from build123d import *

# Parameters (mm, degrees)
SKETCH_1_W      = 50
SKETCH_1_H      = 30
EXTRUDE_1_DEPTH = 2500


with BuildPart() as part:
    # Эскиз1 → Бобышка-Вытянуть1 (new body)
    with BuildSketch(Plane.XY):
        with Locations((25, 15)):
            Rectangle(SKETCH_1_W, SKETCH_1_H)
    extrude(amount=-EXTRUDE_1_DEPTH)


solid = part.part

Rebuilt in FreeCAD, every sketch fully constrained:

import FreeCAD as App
import Part
import Sketcher

V = App.Vector

doc = App.newDocument("Part")
body = doc.addObject("PartDesign::Body", "Body")

sketch1 = doc.addObject("Sketcher::SketchObject", "Sketch")
body.addObject(sketch1)
sketch1.AttachmentSupport = (doc.XY_Plane, [""])
sketch1.MapMode = "FlatFace"
sketch1.addGeometry([
    Part.LineSegment(V(0, 30, 0), V(0, 0, 0)),
    Part.LineSegment(V(0, 0, 0), V(50, 0, 0)),
    Part.LineSegment(V(50, 0, 0), V(50, 30, 0)),
    Part.LineSegment(V(50, 30, 0), V(0, 30, 0)),
], False)
sketch1.addConstraint([
    Sketcher.Constraint("Coincident", 0, 2, 1, 1),
    Sketcher.Constraint("Coincident", 1, 2, 2, 1),
    Sketcher.Constraint("Coincident", 2, 2, 3, 1),
    Sketcher.Constraint("Coincident", 3, 2, 0, 1),
    Sketcher.Constraint("Vertical", 0),
    Sketcher.Constraint("Horizontal", 1),
    Sketcher.Constraint("Vertical", 2),
    Sketcher.Constraint("Horizontal", 3),
    Sketcher.Constraint("Coincident", 0, 2, -1, 1),
    Sketcher.Constraint("DistanceX", 1, 1, 1, 2, 50.0),
    Sketcher.Constraint("DistanceY", 0, 2, 0, 1, 30.0),
])
pad1 = doc.addObject("PartDesign::Pad", "Pad")
body.addObject(pad1)
pad1.Profile = sketch1
pad1.Length = 2500
pad1.Reversed = True

doc.recompute()
